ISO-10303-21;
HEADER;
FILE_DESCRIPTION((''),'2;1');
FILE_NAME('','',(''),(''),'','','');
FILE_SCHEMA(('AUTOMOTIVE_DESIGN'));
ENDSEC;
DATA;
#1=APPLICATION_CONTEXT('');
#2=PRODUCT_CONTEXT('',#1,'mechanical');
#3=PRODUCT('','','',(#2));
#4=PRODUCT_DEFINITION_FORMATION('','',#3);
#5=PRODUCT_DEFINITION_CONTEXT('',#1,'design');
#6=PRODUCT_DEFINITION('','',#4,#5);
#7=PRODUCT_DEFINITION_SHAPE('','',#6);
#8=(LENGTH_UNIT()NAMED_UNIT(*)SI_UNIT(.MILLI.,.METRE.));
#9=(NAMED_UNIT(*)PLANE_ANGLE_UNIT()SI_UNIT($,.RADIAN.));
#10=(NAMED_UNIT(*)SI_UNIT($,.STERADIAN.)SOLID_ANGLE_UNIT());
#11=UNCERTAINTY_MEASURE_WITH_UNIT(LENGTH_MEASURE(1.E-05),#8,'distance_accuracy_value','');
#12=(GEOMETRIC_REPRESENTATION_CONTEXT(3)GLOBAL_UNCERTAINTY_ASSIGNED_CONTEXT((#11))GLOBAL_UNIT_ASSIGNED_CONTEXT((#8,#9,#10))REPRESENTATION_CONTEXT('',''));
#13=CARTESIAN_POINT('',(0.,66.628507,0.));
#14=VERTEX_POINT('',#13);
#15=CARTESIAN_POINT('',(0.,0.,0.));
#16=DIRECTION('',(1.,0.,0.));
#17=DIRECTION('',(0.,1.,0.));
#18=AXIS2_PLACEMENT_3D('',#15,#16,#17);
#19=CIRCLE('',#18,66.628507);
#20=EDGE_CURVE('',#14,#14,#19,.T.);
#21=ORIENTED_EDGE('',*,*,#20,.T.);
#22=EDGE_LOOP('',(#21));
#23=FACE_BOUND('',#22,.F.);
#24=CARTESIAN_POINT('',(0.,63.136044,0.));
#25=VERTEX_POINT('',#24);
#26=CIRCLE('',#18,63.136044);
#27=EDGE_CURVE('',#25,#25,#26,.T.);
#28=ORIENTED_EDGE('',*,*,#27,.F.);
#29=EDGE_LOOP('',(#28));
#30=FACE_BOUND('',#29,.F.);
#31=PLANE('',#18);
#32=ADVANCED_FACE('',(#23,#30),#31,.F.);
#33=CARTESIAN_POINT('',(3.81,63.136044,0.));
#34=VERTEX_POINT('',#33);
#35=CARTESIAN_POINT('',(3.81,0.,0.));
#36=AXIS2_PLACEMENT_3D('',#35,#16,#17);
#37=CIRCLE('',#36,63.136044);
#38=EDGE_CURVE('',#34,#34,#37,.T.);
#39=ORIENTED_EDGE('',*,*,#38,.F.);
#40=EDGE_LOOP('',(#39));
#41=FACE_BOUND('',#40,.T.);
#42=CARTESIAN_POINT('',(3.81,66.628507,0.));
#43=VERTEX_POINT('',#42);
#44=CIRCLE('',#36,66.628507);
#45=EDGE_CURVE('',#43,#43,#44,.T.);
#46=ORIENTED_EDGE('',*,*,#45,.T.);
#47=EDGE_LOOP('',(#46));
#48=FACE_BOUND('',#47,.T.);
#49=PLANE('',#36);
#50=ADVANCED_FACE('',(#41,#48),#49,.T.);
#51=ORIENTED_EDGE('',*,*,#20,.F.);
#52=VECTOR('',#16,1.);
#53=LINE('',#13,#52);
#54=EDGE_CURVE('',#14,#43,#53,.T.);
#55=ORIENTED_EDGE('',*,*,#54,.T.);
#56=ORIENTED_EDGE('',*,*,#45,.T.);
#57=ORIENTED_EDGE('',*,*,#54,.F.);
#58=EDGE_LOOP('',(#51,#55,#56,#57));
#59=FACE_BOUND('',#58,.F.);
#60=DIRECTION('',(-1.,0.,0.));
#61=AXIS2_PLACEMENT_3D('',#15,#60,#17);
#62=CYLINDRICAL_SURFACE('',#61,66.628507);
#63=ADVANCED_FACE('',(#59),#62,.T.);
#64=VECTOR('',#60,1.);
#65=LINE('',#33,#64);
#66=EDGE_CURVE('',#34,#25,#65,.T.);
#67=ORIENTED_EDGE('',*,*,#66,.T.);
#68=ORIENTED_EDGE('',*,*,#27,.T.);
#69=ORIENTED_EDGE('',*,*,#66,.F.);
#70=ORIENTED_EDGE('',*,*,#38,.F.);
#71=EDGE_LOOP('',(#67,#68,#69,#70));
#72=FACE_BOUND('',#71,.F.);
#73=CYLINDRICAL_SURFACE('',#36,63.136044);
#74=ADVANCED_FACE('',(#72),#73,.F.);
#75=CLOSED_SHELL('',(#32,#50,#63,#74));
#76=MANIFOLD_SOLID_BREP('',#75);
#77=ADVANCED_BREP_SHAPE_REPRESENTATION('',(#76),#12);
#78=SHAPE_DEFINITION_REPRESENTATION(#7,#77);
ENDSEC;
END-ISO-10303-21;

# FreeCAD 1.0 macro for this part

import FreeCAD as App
import Part
import Sketcher
from FreeCAD import Vector

doc = App.newDocument("Part")
params = doc.addObject("Spreadsheet::Sheet", "Params")
for row, (alias, value) in enumerate([
    ("pad1_length", "0.15 in"),
], start=1):
    params.set(f"A{row}", alias)
    params.set(f"B{row}", "=" + value)
    params.setAlias(f"B{row}", alias)

body = doc.addObject("PartDesign::Body", "Body")

# Sketch on YZ plane
sketch1 = doc.addObject("Sketcher::SketchObject", "Sketch")
body.addObject(sketch1)
sketch1.AttachmentSupport = (doc.YZ_Plane, [""])
sketch1.MapMode = "FlatFace"
sketch1.addGeometry(Part.Circle(Vector(0, 0, 0), Vector(0, 0, 1), 67), False)
sketch1.addConstraint([
    Sketcher.Constraint("Coincident", 0, 3, -1, 1),
    Sketcher.Constraint("Diameter", 0, 133.257014),
])
pad1 = doc.addObject("PartDesign::Pad", "Pad")
body.addObject(pad1)
pad1.Profile = sketch1
pad1.setExpression("Length", "Params.pad1_length")

# Sketch on YZ plane
sketch2 = doc.addObject("Sketcher::SketchObject", "Sketch001")
body.addObject(sketch2)
sketch2.AttachmentSupport = (doc.YZ_Plane, [""])
sketch2.MapMode = "FlatFace"
sketch2.AttachmentOffset = App.Placement(Vector(0, 0, 0.15 * 25.4), App.Rotation())
sketch2.addGeometry(Part.Circle(Vector(0, 0, 0), Vector(0, 0, 1), 63), False)
sketch2.addConstraint([
    Sketcher.Constraint("Coincident", 0, 3, -1, 1),
    Sketcher.Constraint("Diameter", 0, 126.272088),
])
pocket1 = doc.addObject("PartDesign::Pocket", "Pocket")
body.addObject(pocket1)
pocket1.Profile = sketch2
pocket1.Type = "ThroughAll"

doc.recompute()
